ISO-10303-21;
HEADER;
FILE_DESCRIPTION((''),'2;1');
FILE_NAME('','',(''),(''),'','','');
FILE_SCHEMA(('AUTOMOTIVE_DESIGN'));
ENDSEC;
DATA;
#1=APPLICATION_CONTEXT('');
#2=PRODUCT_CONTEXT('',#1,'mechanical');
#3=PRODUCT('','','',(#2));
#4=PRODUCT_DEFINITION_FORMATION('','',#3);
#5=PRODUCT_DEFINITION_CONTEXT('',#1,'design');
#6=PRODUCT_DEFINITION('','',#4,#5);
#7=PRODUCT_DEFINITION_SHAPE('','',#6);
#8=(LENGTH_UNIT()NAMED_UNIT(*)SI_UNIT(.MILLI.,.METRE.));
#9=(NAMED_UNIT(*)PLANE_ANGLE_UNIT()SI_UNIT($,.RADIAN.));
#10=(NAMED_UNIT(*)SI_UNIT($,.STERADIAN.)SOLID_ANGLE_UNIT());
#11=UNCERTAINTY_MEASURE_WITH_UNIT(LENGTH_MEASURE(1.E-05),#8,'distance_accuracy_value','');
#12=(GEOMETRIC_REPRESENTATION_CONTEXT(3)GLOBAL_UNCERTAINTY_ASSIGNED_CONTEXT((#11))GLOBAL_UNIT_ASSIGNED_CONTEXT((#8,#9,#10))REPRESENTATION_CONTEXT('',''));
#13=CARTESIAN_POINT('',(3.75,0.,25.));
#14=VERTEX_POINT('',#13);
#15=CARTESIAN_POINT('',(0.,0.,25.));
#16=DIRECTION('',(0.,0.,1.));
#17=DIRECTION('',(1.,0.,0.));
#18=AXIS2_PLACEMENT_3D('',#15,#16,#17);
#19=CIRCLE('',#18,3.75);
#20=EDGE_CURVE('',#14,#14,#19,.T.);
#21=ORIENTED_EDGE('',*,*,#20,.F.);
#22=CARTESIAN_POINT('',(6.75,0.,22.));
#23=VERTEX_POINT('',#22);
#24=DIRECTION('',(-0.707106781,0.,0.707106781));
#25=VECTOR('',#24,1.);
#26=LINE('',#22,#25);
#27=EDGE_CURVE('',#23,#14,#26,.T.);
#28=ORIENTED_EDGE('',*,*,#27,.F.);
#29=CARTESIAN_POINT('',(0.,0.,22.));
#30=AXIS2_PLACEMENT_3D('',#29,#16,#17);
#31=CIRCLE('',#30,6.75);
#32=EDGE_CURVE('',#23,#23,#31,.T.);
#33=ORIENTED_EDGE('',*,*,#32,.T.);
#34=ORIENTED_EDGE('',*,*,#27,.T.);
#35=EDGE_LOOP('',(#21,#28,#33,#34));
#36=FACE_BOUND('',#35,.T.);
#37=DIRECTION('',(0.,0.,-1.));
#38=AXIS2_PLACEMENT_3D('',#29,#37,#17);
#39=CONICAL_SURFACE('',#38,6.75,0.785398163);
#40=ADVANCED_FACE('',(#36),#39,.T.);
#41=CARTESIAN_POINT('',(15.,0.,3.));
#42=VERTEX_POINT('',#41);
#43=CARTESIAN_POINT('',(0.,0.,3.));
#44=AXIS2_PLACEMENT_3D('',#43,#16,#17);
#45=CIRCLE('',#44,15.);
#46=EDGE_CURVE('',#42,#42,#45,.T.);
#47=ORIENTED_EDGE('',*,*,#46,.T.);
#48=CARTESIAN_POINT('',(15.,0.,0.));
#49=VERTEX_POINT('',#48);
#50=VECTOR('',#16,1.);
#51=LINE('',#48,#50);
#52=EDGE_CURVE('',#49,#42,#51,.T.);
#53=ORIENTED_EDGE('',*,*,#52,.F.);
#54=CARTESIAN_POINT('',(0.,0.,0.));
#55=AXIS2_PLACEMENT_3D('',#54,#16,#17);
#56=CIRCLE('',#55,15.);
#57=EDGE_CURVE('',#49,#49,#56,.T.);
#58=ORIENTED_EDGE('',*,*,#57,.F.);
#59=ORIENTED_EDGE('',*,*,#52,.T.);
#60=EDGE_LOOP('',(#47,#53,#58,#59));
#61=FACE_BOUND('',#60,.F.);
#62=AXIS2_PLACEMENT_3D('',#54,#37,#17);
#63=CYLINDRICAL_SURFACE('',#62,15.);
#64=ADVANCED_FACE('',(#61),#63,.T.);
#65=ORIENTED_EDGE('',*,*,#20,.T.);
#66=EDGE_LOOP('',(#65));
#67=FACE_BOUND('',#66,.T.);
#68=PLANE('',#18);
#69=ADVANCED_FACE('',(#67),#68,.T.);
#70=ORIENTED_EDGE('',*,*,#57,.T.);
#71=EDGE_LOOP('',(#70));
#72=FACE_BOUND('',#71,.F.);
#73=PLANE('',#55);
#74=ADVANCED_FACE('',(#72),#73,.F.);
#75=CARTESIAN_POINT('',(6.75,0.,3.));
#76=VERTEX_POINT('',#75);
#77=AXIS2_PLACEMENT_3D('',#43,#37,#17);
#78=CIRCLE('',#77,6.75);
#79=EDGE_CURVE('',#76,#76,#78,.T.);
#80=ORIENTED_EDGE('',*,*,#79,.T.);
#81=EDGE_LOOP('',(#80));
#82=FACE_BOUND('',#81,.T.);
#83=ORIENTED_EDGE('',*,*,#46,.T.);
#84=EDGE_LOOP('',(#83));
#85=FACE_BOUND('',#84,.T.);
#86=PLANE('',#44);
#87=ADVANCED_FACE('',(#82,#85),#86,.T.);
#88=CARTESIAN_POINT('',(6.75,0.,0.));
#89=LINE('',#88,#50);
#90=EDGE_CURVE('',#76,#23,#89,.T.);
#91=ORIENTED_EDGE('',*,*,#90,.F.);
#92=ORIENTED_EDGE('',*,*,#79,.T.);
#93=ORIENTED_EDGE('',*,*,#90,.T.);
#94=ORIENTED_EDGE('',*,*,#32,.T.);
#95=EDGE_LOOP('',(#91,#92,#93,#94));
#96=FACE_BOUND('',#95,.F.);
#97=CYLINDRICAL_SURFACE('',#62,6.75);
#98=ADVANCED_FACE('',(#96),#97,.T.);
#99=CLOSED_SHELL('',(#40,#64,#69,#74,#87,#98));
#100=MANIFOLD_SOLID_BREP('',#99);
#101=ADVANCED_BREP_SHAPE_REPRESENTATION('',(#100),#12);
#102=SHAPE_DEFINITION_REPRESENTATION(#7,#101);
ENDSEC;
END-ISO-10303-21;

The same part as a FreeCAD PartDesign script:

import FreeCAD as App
import Part
import Sketcher

V = App.Vector
Q = App.Units.Quantity


def edges_at(feature, points):
    """Names of the edges that pass closest to the given points."""
    edges = feature.Shape.Edges
    near = lambda p: min(range(len(edges)), key=lambda i: edges[i].distToShape(Part.Vertex(*p))[0])
    return sorted({f"Edge{near(p) + 1}" for p in points})

doc = App.newDocument("Part")
body = doc.addObject("PartDesign::Body", "Body")

# Sketch on XY plane
sketch1 = doc.addObject("Sketcher::SketchObject", "Sketch")
body.addObject(sketch1)
sketch1.AttachmentSupport = (doc.XY_Plane, [""])
sketch1.MapMode = "FlatFace"
sketch1.addGeometry(Part.Circle(V(0, 0, 0), V(0, 0, 1), 7), False)
sketch1.addConstraint([
    Sketcher.Constraint("Coincident", 0, 3, -1, 1),
    Sketcher.Constraint("Diameter", 0, Q("13.5 mm")),
])
pad1 = doc.addObject("PartDesign::Pad", "Pad")
body.addObject(pad1)
pad1.Profile = sketch1
pad1.Length = 25

# Sketch on XY plane
sketch2 = doc.addObject("Sketcher::SketchObject", "Sketch001")
body.addObject(sketch2)
sketch2.AttachmentSupport = (doc.XY_Plane, [""])
sketch2.MapMode = "FlatFace"
sketch2.addGeometry(Part.Circle(V(0, 0, 0), V(0, 0, 1), 15), False)
sketch2.addConstraint([
    Sketcher.Constraint("Coincident", 0, 3, -1, 1),
    Sketcher.Constraint("Diameter", 0, Q("30 mm")),
])
pad2 = doc.addObject("PartDesign::Pad", "Pad001")
body.addObject(pad2)
pad2.Profile = sketch2
pad2.Length = 3
doc.recompute()

chamfer = doc.addObject("PartDesign::Chamfer", "Chamfer")
body.addObject(chamfer)
chamfer.Base = (pad2, edges_at(pad2, [(-6.75, 0, 25)]))
chamfer.Size = 3

doc.recompute()
